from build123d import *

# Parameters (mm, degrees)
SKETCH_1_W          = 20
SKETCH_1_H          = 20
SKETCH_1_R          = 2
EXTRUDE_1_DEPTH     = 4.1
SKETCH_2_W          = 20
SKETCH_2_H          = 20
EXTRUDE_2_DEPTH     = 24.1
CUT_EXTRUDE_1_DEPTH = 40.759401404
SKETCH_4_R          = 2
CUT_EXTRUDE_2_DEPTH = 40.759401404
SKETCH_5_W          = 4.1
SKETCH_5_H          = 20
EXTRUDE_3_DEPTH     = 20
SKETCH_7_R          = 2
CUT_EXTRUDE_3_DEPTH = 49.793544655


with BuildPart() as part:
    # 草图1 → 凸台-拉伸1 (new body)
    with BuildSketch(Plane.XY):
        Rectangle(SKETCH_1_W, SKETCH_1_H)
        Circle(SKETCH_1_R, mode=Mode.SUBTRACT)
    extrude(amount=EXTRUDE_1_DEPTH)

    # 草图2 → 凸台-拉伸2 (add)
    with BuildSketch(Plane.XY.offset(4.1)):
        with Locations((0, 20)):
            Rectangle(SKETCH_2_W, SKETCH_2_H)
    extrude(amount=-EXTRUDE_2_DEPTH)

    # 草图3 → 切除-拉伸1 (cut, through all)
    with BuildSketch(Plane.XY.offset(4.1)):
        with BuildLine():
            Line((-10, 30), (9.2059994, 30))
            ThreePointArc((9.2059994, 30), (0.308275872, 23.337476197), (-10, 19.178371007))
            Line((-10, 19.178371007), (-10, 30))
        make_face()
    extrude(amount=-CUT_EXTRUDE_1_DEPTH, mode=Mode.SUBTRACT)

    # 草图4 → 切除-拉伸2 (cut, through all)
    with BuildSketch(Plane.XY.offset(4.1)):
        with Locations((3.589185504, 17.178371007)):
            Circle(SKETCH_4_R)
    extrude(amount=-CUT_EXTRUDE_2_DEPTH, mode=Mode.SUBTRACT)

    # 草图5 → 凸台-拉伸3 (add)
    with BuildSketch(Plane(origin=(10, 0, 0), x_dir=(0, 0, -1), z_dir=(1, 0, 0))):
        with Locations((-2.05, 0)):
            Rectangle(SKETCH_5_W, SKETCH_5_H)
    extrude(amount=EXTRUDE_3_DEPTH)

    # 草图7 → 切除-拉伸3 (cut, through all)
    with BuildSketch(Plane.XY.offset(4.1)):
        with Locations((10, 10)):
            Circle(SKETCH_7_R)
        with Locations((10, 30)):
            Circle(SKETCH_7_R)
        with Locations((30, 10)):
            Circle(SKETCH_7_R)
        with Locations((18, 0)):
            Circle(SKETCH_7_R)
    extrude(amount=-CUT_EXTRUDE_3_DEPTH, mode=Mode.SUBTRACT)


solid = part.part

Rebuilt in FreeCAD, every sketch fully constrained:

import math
import FreeCAD as App
import Part
import Sketcher
Q = App.Units.Quantity


def add_polygon(sketch, points):
    """Adds a closed chain of lines whose ends are joined by coincident constraints."""
    first, n = sketch.GeometryCount, len(points)
    for a, b in zip(points, points[1:] + points[:1]):
        sketch.addGeometry(Part.LineSegment(App.Vector(*a, 0), App.Vector(*b, 0)), False)
    for i in range(n):
        sketch.addConstraint(Sketcher.Constraint("Coincident", first + i, 2, first + (i + 1) % n, 1))

doc = App.newDocument("Part")
body = doc.addObject("PartDesign::Body", "Body")

# Sketch on XY plane
sketch1 = body.newObject("Sketcher::SketchObject", "Sketch")
sketch1.AttachmentSupport = (doc.getObject("XY_Plane"), [""])
sketch1.MapMode = "FlatFace"
add_polygon(sketch1, [(-10, 10), (-10, -10), (10, -10), (10, 10)])  # lines 0-3
sketch1.addGeometry(Part.Circle(App.Vector(0, 0, 0), App.Vector(0, 0, 1), 2), False)  # 4
sketch1.addConstraint([
    Sketcher.Constraint("Vertical", 0),
    Sketcher.Constraint("Horizontal", 1),
    Sketcher.Constraint("Vertical", 2),
    Sketcher.Constraint("Horizontal", 3),
    Sketcher.Constraint("Coincident", 4, 3, -1, 1),
    Sketcher.Constraint("Symmetric", 0, 2, 2, 2, -1, 1),
    Sketcher.Constraint("Equal", 3, 0),
    Sketcher.Constraint("Diameter", 4, Q("4 mm")),
    Sketcher.Constraint("DistanceX", 1, 1, 1, 2, Q("20 mm")),
])
pad1 = body.newObject("PartDesign::Pad", "Pad")
pad1.Profile = sketch1
pad1.Length = 4.1

# Sketch on XY plane
sketch2 = body.newObject("Sketcher::SketchObject", "Sketch001")
sketch2.AttachmentSupport = (doc.getObject("XY_Plane"), [""])
sketch2.MapMode = "FlatFace"
sketch2.AttachmentOffset = App.Placement(App.Vector(0, 0, 4.1), App.Rotation())
add_polygon(sketch2, [(-10, 30), (-10, 10), (10, 10), (10, 30)])  # lines 0-3
sketch2.addConstraint([
    Sketcher.Constraint("Vertical", 0),
    Sketcher.Constraint("Horizontal", 1),
    Sketcher.Constraint("Vertical", 2),
    Sketcher.Constraint("Horizontal", 3),
    Sketcher.Constraint("Equal", 3, 0),
    Sketcher.Constraint("DistanceX", 1, 1, 1, 2, Q("20 mm")),
    Sketcher.Constraint("DistanceX", 0, 2, -1, 1, Q("10 mm")),
    Sketcher.Constraint("DistanceY", -1, 1, 0, 2, Q("10 mm")),
])
pad2 = body.newObject("PartDesign::Pad", "Pad001")
pad2.Profile = sketch2
pad2.Length = 24.1
pad2.Reversed = True

# Sketch on XY plane
sketch3 = body.newObject("Sketcher::SketchObject", "Sketch002")
sketch3.AttachmentSupport = (doc.getObject("XY_Plane"), [""])
sketch3.MapMode = "FlatFace"
sketch3.AttachmentOffset = App.Placement(App.Vector(0, 0, 4.1), App.Rotation())
sketch3.addGeometry([
    Part.LineSegment(App.Vector(9, 30, 0), App.Vector(-10, 30, 0)),
    Part.LineSegment(App.Vector(-10, 30, 0), App.Vector(-10, 19, 0)),
    Part.ArcOfCircle(Part.Circle(App.Vector(-21, 61, 0), App.Vector(0, 0, 1), 43), math.radians(-75), math.radians(-46)),
], False)
sketch3.addConstraint([
    Sketcher.Constraint("Coincident", 0, 2, 1, 1),
    Sketcher.Constraint("Coincident", 1, 2, 2, 1),
    Sketcher.Constraint("Coincident", 2, 2, 0, 1),
    Sketcher.Constraint("Horizontal", 0),
    Sketcher.Constraint("Vertical", 1),
    Sketcher.Constraint("Radius", 2, Q("43 mm")),
    Sketcher.Constraint("DistanceX", 0, 2, -1, 1, Q("10 mm")),
    Sketcher.Constraint("DistanceY", -1, 1, 0, 2, Q("30 mm")),
    Sketcher.Constraint("DistanceX", 2, 3, -1, 1, Q("20.8 mm")),
    Sketcher.Constraint("DistanceY", -1, 1, 2, 3, Q("60.8 mm")),
])
pocket1 = body.newObject("PartDesign::Pocket", "Pocket")
pocket1.Profile = sketch3
pocket1.Type = "ThroughAll"

# Sketch on XY plane
sketch4 = body.newObject("Sketcher::SketchObject", "Sketch003")
sketch4.AttachmentSupport = (doc.getObject("XY_Plane"), [""])
sketch4.MapMode = "FlatFace"
sketch4.AttachmentOffset = App.Placement(App.Vector(0, 0, 4.1), App.Rotation())
sketch4.addGeometry(Part.Circle(App.Vector(3.6, 17.2, 0), App.Vector(0, 0, 1), 2), False)
sketch4.addConstraint([
    Sketcher.Constraint("Diameter", 0, Q("4 mm")),
    Sketcher.Constraint("DistanceY", -1, 1, 0, 3, Q("17.178371 mm")),
    Sketcher.Constraint("DistanceX", -1, 1, 0, 3, Q("3.589186 mm")),
])
pocket2 = body.newObject("PartDesign::Pocket", "Pocket001")
pocket2.Profile = sketch4
pocket2.Type = "ThroughAll"

# Sketch on YZ plane
sketch5 = body.newObject("Sketcher::SketchObject", "Sketch004")
sketch5.AttachmentSupport = (doc.getObject("YZ_Plane"), [""])
sketch5.MapMode = "FlatFace"
sketch5.AttachmentOffset = App.Placement(App.Vector(0, 0, 10), App.Rotation())
add_polygon(sketch5, [(10, 4.1), (-10, 4.1), (-10, 0), (10, 0)])  # lines 0-3
sketch5.addConstraint([
    Sketcher.Constraint("Horizontal", 0),
    Sketcher.Constraint("Vertical", 1),
    Sketcher.Constraint("Horizontal", 2),
    Sketcher.Constraint("Vertical", 3),
    Sketcher.Constraint("Symmetric", 1, 2, 2, 2, -1, 1),
    Sketcher.Constraint("DistanceX", 0, 2, 0, 1, Q("20 mm")),
    Sketcher.Constraint("DistanceY", 1, 2, 1, 1, Q("4.1 mm")),
])
pad3 = body.newObject("PartDesign::Pad", "Pad002")
pad3.Profile = sketch5
pad3.Length = 20

# Sketch on XY plane
sketch6 = body.newObject("Sketcher::SketchObject", "Sketch005")
sketch6.AttachmentSupport = (doc.getObject("XY_Plane"), [""])
sketch6.MapMode = "FlatFace"
sketch6.AttachmentOffset = App.Placement(App.Vector(0, 0, 4.1), App.Rotation())
sketch6.addGeometry([
    Part.Circle(App.Vector(10, 10, 0), App.Vector(0, 0, 1), 2),
    Part.Circle(App.Vector(10, 30, 0), App.Vector(0, 0, 1), 2),
    Part.Circle(App.Vector(30, 10, 0), App.Vector(0, 0, 1), 2),
    Part.Circle(App.Vector(18, 0, 0), App.Vector(0, 0, 1), 2),
], False)
sketch6.addConstraint([
    Sketcher.Constraint("Equal", 0, 1),
    Sketcher.Constraint("Equal", 1, 2),
    Sketcher.Constraint("Equal", 2, 3),
    Sketcher.Constraint("PointOnObject", 3, 3, -1),
    Sketcher.Constraint("Horizontal", 0, 3, 2, 3),
    Sketcher.Constraint("Vertical", 0, 3, 1, 3),
    Sketcher.Constraint("Diameter", 0, Q("4 mm")),
    Sketcher.Constraint("DistanceX", -1, 1, 0, 3, Q("10 mm")),
    Sketcher.Constraint("DistanceY", -1, 1, 0, 3, Q("10 mm")),
    Sketcher.Constraint("DistanceY", -1, 1, 1, 3, Q("30 mm")),
    Sketcher.Constraint("DistanceX", -1, 1, 2, 3, Q("30 mm")),
    Sketcher.Constraint("DistanceX", -1, 1, 3, 3, Q("18 mm")),
])
pocket3 = body.newObject("PartDesign::Pocket", "Pocket002")
pocket3.Profile = sketch6
pocket3.Type = "ThroughAll"

doc.recompute()
